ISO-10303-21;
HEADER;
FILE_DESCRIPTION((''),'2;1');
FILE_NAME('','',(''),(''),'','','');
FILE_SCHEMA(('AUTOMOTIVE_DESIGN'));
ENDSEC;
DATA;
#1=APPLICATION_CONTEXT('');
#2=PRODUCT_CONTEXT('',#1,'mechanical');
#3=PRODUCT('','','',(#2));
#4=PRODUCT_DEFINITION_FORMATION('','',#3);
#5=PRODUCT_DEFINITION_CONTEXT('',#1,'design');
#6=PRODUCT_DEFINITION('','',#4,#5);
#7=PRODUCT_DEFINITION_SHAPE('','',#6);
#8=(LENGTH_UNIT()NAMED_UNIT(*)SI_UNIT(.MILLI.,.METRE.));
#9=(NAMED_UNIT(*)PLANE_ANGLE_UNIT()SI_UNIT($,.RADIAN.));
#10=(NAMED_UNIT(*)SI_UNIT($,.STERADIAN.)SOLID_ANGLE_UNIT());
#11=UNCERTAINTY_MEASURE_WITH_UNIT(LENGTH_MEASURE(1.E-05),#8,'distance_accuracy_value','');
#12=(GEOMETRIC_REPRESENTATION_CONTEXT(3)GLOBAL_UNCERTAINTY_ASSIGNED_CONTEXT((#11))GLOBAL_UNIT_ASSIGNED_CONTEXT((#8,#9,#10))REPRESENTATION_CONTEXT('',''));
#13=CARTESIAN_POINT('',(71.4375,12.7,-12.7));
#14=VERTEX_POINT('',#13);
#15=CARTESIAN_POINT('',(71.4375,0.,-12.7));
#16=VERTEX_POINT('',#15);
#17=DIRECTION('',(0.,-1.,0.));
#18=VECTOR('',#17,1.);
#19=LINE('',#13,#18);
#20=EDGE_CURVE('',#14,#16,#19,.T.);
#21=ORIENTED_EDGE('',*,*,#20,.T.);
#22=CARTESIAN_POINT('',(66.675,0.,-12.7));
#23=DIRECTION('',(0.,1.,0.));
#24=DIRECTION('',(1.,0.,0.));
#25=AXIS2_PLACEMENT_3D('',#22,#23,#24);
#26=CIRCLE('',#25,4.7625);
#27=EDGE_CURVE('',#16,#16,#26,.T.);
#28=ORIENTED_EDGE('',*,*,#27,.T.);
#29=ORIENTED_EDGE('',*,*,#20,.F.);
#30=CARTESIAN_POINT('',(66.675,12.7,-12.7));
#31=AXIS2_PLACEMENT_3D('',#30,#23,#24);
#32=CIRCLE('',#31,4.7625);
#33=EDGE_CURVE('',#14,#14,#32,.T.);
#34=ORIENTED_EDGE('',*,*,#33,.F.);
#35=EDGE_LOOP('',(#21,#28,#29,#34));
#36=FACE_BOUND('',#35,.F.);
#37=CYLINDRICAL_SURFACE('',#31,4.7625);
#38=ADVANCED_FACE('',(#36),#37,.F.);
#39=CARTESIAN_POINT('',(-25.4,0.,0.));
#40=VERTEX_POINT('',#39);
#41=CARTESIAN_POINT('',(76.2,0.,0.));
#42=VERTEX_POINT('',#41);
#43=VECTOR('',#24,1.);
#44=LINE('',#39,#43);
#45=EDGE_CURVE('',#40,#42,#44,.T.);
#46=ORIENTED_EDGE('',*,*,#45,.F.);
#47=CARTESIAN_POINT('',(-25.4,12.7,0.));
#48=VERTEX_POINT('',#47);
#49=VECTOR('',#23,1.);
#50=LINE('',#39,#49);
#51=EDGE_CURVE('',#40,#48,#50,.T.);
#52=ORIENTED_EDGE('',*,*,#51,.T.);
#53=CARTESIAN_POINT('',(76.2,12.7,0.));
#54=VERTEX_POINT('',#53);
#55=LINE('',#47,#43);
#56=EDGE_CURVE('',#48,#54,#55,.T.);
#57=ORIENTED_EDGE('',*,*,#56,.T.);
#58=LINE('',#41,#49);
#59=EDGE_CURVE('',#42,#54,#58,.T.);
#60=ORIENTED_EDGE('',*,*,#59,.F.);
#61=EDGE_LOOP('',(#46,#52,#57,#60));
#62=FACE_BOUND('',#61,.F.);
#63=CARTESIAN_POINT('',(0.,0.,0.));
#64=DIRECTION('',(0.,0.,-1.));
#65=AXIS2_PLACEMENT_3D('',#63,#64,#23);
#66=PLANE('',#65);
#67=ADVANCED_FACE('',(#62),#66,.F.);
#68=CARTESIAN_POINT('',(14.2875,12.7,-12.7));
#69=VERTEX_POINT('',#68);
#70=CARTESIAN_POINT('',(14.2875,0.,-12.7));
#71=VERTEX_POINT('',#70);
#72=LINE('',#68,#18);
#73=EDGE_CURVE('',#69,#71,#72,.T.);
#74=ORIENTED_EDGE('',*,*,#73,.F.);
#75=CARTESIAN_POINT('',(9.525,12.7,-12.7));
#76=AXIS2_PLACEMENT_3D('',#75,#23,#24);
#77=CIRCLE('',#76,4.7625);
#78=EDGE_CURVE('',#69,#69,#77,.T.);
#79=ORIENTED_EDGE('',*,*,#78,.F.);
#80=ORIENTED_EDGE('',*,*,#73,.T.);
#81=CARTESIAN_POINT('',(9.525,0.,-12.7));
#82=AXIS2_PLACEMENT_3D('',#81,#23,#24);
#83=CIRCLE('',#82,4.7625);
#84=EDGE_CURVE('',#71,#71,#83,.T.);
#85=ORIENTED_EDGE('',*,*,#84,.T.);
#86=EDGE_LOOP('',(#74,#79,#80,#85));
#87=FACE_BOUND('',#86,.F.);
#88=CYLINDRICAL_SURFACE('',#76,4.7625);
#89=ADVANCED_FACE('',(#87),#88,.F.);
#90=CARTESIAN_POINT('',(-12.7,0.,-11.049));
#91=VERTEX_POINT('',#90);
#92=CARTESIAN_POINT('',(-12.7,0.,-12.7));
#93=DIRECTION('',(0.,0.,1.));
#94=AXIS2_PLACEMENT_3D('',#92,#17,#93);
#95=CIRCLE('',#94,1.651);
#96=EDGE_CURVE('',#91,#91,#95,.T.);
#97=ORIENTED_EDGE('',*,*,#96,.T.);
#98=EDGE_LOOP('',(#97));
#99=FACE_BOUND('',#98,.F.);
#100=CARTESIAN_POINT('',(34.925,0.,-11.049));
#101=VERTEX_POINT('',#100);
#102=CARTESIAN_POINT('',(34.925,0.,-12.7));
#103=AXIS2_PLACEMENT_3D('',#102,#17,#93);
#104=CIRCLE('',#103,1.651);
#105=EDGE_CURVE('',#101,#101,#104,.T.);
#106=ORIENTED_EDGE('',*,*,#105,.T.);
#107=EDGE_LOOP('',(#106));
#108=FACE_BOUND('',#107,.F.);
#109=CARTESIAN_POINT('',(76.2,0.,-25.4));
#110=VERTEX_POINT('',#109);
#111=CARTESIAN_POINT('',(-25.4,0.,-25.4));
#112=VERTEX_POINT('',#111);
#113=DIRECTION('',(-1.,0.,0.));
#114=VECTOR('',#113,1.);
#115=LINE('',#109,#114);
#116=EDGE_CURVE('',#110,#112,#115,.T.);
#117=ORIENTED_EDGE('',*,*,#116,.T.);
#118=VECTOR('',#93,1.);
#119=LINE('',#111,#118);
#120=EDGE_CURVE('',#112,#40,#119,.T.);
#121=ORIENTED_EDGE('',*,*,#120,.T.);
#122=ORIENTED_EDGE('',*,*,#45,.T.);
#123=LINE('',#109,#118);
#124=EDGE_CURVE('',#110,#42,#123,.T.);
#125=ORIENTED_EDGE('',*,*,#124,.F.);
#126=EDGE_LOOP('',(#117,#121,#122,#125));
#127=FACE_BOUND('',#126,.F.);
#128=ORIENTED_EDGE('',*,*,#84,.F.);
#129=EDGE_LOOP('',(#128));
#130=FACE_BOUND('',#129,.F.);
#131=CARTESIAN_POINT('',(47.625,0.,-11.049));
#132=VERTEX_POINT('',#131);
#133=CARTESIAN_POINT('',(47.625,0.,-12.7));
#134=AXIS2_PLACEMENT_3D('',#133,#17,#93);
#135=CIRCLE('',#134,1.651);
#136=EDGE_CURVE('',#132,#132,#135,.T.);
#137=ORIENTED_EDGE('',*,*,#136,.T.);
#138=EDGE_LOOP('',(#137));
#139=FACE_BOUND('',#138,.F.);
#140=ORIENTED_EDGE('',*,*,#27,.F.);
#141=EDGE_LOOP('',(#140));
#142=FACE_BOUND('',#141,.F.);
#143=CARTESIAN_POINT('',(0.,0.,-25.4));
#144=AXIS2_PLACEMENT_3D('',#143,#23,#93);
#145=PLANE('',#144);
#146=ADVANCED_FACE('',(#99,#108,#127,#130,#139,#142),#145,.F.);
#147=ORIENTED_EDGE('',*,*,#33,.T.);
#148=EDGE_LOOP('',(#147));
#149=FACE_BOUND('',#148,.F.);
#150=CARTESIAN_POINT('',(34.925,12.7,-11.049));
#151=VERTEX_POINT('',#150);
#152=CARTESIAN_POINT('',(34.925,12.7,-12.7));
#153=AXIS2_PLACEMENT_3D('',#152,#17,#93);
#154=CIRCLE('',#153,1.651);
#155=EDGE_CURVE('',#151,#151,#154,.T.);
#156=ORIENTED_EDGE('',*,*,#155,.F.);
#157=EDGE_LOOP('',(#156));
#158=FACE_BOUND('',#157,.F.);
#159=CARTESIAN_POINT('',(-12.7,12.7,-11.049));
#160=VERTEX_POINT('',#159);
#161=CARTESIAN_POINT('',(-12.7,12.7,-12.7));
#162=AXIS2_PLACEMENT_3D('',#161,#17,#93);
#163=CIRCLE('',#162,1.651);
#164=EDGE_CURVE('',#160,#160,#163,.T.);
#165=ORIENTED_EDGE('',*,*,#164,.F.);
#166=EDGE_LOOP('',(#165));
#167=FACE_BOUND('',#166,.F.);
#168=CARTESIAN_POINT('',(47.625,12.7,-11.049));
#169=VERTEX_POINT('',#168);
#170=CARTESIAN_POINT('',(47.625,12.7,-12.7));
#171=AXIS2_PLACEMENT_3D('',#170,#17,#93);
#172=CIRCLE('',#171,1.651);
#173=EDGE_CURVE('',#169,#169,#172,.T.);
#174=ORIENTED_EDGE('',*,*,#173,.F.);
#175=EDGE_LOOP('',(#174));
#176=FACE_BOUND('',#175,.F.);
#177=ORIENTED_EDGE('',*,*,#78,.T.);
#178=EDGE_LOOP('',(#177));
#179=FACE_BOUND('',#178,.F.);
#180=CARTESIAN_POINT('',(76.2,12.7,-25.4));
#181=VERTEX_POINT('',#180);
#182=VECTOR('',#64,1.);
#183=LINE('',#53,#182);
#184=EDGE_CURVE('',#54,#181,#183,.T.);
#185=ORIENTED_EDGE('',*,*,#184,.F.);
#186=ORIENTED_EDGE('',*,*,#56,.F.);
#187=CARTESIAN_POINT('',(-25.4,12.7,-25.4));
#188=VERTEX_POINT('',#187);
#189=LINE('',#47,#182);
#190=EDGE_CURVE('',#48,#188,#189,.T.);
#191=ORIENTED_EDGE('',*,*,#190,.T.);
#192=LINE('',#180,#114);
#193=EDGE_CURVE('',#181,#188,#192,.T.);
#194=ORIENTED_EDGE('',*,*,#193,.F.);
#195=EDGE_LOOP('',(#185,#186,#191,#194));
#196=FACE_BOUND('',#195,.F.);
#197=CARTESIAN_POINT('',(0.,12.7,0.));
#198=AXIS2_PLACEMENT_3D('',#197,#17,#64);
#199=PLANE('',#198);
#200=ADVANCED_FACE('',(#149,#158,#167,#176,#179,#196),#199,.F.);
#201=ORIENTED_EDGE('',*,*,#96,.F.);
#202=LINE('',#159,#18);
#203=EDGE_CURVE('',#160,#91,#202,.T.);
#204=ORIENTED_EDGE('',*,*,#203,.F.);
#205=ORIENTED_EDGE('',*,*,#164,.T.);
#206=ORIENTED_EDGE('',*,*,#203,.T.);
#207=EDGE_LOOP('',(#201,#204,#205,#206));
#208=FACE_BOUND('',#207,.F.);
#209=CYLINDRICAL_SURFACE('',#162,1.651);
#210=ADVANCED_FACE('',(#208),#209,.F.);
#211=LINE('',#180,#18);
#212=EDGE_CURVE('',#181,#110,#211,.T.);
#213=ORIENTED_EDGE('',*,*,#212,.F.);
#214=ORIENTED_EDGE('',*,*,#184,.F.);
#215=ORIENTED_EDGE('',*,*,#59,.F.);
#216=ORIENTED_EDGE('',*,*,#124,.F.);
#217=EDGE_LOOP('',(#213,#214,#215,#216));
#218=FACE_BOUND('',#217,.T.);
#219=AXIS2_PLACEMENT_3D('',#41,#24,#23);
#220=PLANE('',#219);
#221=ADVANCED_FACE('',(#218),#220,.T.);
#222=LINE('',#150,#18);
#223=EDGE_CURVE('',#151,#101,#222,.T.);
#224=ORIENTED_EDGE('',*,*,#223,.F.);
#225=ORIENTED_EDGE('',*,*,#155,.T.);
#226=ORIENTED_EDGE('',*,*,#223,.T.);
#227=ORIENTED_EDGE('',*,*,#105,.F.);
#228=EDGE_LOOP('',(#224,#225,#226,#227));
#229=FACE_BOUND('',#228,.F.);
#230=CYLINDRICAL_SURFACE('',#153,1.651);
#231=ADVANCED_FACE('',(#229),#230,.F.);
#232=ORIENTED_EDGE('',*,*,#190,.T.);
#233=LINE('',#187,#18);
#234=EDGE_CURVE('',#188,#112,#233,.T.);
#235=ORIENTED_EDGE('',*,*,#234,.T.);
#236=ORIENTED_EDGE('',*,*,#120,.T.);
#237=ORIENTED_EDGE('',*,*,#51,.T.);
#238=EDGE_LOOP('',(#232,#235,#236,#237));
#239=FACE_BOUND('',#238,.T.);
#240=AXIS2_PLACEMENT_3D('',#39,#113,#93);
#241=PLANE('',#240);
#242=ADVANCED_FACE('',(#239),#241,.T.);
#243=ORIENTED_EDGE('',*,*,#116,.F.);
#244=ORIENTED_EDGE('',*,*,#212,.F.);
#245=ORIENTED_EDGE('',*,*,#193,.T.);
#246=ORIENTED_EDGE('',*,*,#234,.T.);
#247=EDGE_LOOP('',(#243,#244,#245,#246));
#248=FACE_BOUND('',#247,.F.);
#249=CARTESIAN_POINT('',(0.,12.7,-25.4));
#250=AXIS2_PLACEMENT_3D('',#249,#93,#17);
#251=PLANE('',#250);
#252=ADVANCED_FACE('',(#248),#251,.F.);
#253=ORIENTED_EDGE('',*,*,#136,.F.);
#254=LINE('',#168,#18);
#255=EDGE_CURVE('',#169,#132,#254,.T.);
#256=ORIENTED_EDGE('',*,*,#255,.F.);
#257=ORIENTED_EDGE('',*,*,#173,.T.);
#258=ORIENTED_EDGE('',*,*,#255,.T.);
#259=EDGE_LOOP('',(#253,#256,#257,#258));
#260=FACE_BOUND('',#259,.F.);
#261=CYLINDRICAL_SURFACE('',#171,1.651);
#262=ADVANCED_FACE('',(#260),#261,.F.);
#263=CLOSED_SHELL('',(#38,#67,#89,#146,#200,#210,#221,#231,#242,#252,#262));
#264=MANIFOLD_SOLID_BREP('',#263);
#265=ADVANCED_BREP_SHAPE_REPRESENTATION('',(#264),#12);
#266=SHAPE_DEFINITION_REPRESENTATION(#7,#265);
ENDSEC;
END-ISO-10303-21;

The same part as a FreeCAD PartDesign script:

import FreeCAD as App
import Part
import Sketcher
from FreeCAD import Vector
Q = App.Units.Quantity

doc = App.newDocument("Part")
body = doc.addObject("PartDesign::Body", "Body")

# Sketch on YZ plane
sketch1 = body.newObject("Sketcher::SketchObject", "Sketch")
sketch1.AttachmentSupport = (doc.getObject("YZ_Plane"), [""])
sketch1.MapMode = "FlatFace"
sketch1.addGeometry([
    Part.LineSegment(Vector(12.7, 0, 0), Vector(0, 0, 0)),
    Part.LineSegment(Vector(0, 0, 0), Vector(0, -25.4, 0)),
    Part.LineSegment(Vector(0, -25.4, 0), Vector(12.7, -25.4, 0)),
    Part.LineSegment(Vector(12.7, -25.4, 0), Vector(12.7, 0, 0)),
], False)
sketch1.addConstraint([
    Sketcher.Constraint("Coincident", 0, 2, 1, 1),
    Sketcher.Constraint("Coincident", 1, 2, 2, 1),
    Sketcher.Constraint("Coincident", 2, 2, 3, 1),
    Sketcher.Constraint("Coincident", 3, 2, 0, 1),
    Sketcher.Constraint("Horizontal", 0),
    Sketcher.Constraint("Vertical", 1),
    Sketcher.Constraint("Horizontal", 2),
    Sketcher.Constraint("Vertical", 3),
    Sketcher.Constraint("Coincident", 0, 2, -1, 1),
    Sketcher.Constraint("DistanceY", 1, 2, 1, 1, Q("1 in")),
    Sketcher.Constraint("DistanceX", 0, 2, 0, 1, Q("0.5 in")),
])
pad1 = body.newObject("PartDesign::Pad", "Pad")
pad1.Profile = sketch1
pad1.Length = Q("3 in")

# Sketch on XZ plane
sketch2 = body.newObject("Sketcher::SketchObject", "Sketch001")
sketch2.AttachmentSupport = (doc.getObject("XZ_Plane"), [""])
sketch2.MapMode = "FlatFace"
sketch2.AttachmentOffset = App.Placement(Vector(0, 0, -0.5 * 25.4), App.Rotation())
sketch2.addGeometry([
    Part.Circle(Vector(9.525, -12.7, 0), Vector(0, 0, 1), 4.7625),
    Part.Circle(Vector(66.675, -12.7, 0), Vector(0, 0, 1), 4.7625),
], False)
sketch2.addConstraint([
    Sketcher.Constraint("Equal", 0, 1),
    Sketcher.Constraint("Horizontal", 0, 3, 1, 3),
    Sketcher.Constraint("Diameter", 0, Q("0.375 in")),
    Sketcher.Constraint("DistanceY", 0, 3, -1, 1, Q("0.5 in")),
    Sketcher.Constraint("DistanceX", -1, 1, 0, 3, Q("0.375 in")),
    Sketcher.Constraint("DistanceX", 0, 3, 1, 3, Q("2.25 in")),
])
pocket1 = body.newObject("PartDesign::Pocket", "Pocket")
pocket1.Profile = sketch2
pocket1.Type = "ThroughAll"
pocket1.Reversed = True

# Sketch on XZ plane
sketch3 = body.newObject("Sketcher::SketchObject", "Sketch002")
sketch3.AttachmentSupport = (doc.getObject("XZ_Plane"), [""])
sketch3.MapMode = "FlatFace"
sketch3.AttachmentOffset = App.Placement(Vector(0, 0, -0.5 * 25.4), App.Rotation())
sketch3.addGeometry(Part.Circle(Vector(47.625, -12.7, 0), Vector(0, 0, 1), 1.651), False)
sketch3.addConstraint([
    Sketcher.Constraint("Diameter", 0, Q("0.13 in")),
    Sketcher.Constraint("DistanceY", 0, 3, -1, 1, Q("0.5 in")),
    Sketcher.Constraint("DistanceX", -1, 1, 0, 3, Q("1.875 in")),
])
doc.recompute()
hole = body.newObject("PartDesign::Hole", "Hole")
hole.Profile = sketch3
hole.ThreadType = "None"
hole.Diameter = Q("0.13 in")
hole.DepthType = "ThroughAll"
hole.Reversed = True

# Sketch on YZ plane
sketch4 = body.newObject("Sketcher::SketchObject", "Sketch003")
sketch4.AttachmentSupport = (doc.getObject("YZ_Plane"), [""])
sketch4.MapMode = "FlatFace"
sketch4.addGeometry([
    Part.LineSegment(Vector(12.7, 0, 0), Vector(12.7, -25.4, 0)),
    Part.LineSegment(Vector(12.7, -25.4, 0), Vector(0, -25.4, 0)),
    Part.LineSegment(Vector(0, -25.4, 0), Vector(0, 0, 0)),
    Part.LineSegment(Vector(0, 0, 0), Vector(12.7, 0, 0)),
], False)
sketch4.addConstraint([
    Sketcher.Constraint("Coincident", 0, 2, 1, 1),
    Sketcher.Constraint("Coincident", 1, 2, 2, 1),
    Sketcher.Constraint("Coincident", 2, 2, 3, 1),
    Sketcher.Constraint("Coincident", 3, 2, 0, 1),
    Sketcher.Constraint("Vertical", 0),
    Sketcher.Constraint("Horizontal", 1),
    Sketcher.Constraint("Vertical", 2),
    Sketcher.Constraint("Horizontal", 3),
    Sketcher.Constraint("Coincident", 2, 2, -1, 1),
    Sketcher.Constraint("DistanceY", 0, 2, 0, 1, Q("1 in")),
    Sketcher.Constraint("DistanceX", 1, 2, 1, 1, Q("0.5 in")),
])
pad2 = body.newObject("PartDesign::Pad", "Pad001")
pad2.Profile = sketch4
pad2.Length = Q("1 in")
pad2.Reversed = True

# Sketch on XZ plane
sketch5 = body.newObject("Sketcher::SketchObject", "Sketch004")
sketch5.AttachmentSupport = (doc.getObject("XZ_Plane"), [""])
sketch5.MapMode = "FlatFace"
sketch5.AttachmentOffset = App.Placement(Vector(0, 0, -0.5 * 25.4), App.Rotation())
sketch5.addGeometry([
    Part.Circle(Vector(-12.7, -12.7, 0), Vector(0, 0, 1), 1.651),
    Part.Circle(Vector(63.5, 12.7, 0), Vector(0, 0, 1), 1.651),
], False)
sketch5.addConstraint([
    Sketcher.Constraint("Equal", 0, 1),
    Sketcher.Constraint("Diameter", 0, Q("0.13 in")),
    Sketcher.Constraint("DistanceX", 0, 3, 1, 3, Q("3 in")),
    Sketcher.Constraint("DistanceY", 0, 3, 1, 3, Q("1 in")),
    Sketcher.Constraint("DistanceX", 0, 3, -1, 1, Q("0.5 in")),
    Sketcher.Constraint("DistanceY", 0, 3, -1, 1, Q("0.5 in")),
])
doc.recompute()
hole2 = body.newObject("PartDesign::Hole", "Hole001")
hole2.Profile = sketch5
hole2.ThreadType = "None"
hole2.Diameter = Q("0.13 in")
hole2.DepthType = "ThroughAll"
hole2.Reversed = True

# Sketch on XZ plane
sketch6 = body.newObject("Sketcher::SketchObject", "Sketch005")
sketch6.AttachmentSupport = (doc.getObject("XZ_Plane"), [""])
sketch6.MapMode = "FlatFace"
sketch6.AttachmentOffset = App.Placement(Vector(0, 0, -0.5 * 25.4), App.Rotation())
sketch6.addGeometry(Part.Circle(Vector(34.925, -12.7, 0), Vector(0, 0, 1), 1.651), False)
sketch6.addConstraint([
    Sketcher.Constraint("Diameter", 0, Q("0.13 in")),
    Sketcher.Constraint("DistanceY", 0, 3, -1, 1, Q("0.5 in")),
    Sketcher.Constraint("DistanceX", -1, 1, 0, 3, Q("1.375 in")),
])
doc.recompute()
hole3 = body.newObject("PartDesign::Hole", "Hole002")
hole3.Profile = sketch6
hole3.ThreadType = "None"
hole3.Diameter = Q("0.13 in")
hole3.DepthType = "ThroughAll"
hole3.Reversed = True

doc.recompute()
